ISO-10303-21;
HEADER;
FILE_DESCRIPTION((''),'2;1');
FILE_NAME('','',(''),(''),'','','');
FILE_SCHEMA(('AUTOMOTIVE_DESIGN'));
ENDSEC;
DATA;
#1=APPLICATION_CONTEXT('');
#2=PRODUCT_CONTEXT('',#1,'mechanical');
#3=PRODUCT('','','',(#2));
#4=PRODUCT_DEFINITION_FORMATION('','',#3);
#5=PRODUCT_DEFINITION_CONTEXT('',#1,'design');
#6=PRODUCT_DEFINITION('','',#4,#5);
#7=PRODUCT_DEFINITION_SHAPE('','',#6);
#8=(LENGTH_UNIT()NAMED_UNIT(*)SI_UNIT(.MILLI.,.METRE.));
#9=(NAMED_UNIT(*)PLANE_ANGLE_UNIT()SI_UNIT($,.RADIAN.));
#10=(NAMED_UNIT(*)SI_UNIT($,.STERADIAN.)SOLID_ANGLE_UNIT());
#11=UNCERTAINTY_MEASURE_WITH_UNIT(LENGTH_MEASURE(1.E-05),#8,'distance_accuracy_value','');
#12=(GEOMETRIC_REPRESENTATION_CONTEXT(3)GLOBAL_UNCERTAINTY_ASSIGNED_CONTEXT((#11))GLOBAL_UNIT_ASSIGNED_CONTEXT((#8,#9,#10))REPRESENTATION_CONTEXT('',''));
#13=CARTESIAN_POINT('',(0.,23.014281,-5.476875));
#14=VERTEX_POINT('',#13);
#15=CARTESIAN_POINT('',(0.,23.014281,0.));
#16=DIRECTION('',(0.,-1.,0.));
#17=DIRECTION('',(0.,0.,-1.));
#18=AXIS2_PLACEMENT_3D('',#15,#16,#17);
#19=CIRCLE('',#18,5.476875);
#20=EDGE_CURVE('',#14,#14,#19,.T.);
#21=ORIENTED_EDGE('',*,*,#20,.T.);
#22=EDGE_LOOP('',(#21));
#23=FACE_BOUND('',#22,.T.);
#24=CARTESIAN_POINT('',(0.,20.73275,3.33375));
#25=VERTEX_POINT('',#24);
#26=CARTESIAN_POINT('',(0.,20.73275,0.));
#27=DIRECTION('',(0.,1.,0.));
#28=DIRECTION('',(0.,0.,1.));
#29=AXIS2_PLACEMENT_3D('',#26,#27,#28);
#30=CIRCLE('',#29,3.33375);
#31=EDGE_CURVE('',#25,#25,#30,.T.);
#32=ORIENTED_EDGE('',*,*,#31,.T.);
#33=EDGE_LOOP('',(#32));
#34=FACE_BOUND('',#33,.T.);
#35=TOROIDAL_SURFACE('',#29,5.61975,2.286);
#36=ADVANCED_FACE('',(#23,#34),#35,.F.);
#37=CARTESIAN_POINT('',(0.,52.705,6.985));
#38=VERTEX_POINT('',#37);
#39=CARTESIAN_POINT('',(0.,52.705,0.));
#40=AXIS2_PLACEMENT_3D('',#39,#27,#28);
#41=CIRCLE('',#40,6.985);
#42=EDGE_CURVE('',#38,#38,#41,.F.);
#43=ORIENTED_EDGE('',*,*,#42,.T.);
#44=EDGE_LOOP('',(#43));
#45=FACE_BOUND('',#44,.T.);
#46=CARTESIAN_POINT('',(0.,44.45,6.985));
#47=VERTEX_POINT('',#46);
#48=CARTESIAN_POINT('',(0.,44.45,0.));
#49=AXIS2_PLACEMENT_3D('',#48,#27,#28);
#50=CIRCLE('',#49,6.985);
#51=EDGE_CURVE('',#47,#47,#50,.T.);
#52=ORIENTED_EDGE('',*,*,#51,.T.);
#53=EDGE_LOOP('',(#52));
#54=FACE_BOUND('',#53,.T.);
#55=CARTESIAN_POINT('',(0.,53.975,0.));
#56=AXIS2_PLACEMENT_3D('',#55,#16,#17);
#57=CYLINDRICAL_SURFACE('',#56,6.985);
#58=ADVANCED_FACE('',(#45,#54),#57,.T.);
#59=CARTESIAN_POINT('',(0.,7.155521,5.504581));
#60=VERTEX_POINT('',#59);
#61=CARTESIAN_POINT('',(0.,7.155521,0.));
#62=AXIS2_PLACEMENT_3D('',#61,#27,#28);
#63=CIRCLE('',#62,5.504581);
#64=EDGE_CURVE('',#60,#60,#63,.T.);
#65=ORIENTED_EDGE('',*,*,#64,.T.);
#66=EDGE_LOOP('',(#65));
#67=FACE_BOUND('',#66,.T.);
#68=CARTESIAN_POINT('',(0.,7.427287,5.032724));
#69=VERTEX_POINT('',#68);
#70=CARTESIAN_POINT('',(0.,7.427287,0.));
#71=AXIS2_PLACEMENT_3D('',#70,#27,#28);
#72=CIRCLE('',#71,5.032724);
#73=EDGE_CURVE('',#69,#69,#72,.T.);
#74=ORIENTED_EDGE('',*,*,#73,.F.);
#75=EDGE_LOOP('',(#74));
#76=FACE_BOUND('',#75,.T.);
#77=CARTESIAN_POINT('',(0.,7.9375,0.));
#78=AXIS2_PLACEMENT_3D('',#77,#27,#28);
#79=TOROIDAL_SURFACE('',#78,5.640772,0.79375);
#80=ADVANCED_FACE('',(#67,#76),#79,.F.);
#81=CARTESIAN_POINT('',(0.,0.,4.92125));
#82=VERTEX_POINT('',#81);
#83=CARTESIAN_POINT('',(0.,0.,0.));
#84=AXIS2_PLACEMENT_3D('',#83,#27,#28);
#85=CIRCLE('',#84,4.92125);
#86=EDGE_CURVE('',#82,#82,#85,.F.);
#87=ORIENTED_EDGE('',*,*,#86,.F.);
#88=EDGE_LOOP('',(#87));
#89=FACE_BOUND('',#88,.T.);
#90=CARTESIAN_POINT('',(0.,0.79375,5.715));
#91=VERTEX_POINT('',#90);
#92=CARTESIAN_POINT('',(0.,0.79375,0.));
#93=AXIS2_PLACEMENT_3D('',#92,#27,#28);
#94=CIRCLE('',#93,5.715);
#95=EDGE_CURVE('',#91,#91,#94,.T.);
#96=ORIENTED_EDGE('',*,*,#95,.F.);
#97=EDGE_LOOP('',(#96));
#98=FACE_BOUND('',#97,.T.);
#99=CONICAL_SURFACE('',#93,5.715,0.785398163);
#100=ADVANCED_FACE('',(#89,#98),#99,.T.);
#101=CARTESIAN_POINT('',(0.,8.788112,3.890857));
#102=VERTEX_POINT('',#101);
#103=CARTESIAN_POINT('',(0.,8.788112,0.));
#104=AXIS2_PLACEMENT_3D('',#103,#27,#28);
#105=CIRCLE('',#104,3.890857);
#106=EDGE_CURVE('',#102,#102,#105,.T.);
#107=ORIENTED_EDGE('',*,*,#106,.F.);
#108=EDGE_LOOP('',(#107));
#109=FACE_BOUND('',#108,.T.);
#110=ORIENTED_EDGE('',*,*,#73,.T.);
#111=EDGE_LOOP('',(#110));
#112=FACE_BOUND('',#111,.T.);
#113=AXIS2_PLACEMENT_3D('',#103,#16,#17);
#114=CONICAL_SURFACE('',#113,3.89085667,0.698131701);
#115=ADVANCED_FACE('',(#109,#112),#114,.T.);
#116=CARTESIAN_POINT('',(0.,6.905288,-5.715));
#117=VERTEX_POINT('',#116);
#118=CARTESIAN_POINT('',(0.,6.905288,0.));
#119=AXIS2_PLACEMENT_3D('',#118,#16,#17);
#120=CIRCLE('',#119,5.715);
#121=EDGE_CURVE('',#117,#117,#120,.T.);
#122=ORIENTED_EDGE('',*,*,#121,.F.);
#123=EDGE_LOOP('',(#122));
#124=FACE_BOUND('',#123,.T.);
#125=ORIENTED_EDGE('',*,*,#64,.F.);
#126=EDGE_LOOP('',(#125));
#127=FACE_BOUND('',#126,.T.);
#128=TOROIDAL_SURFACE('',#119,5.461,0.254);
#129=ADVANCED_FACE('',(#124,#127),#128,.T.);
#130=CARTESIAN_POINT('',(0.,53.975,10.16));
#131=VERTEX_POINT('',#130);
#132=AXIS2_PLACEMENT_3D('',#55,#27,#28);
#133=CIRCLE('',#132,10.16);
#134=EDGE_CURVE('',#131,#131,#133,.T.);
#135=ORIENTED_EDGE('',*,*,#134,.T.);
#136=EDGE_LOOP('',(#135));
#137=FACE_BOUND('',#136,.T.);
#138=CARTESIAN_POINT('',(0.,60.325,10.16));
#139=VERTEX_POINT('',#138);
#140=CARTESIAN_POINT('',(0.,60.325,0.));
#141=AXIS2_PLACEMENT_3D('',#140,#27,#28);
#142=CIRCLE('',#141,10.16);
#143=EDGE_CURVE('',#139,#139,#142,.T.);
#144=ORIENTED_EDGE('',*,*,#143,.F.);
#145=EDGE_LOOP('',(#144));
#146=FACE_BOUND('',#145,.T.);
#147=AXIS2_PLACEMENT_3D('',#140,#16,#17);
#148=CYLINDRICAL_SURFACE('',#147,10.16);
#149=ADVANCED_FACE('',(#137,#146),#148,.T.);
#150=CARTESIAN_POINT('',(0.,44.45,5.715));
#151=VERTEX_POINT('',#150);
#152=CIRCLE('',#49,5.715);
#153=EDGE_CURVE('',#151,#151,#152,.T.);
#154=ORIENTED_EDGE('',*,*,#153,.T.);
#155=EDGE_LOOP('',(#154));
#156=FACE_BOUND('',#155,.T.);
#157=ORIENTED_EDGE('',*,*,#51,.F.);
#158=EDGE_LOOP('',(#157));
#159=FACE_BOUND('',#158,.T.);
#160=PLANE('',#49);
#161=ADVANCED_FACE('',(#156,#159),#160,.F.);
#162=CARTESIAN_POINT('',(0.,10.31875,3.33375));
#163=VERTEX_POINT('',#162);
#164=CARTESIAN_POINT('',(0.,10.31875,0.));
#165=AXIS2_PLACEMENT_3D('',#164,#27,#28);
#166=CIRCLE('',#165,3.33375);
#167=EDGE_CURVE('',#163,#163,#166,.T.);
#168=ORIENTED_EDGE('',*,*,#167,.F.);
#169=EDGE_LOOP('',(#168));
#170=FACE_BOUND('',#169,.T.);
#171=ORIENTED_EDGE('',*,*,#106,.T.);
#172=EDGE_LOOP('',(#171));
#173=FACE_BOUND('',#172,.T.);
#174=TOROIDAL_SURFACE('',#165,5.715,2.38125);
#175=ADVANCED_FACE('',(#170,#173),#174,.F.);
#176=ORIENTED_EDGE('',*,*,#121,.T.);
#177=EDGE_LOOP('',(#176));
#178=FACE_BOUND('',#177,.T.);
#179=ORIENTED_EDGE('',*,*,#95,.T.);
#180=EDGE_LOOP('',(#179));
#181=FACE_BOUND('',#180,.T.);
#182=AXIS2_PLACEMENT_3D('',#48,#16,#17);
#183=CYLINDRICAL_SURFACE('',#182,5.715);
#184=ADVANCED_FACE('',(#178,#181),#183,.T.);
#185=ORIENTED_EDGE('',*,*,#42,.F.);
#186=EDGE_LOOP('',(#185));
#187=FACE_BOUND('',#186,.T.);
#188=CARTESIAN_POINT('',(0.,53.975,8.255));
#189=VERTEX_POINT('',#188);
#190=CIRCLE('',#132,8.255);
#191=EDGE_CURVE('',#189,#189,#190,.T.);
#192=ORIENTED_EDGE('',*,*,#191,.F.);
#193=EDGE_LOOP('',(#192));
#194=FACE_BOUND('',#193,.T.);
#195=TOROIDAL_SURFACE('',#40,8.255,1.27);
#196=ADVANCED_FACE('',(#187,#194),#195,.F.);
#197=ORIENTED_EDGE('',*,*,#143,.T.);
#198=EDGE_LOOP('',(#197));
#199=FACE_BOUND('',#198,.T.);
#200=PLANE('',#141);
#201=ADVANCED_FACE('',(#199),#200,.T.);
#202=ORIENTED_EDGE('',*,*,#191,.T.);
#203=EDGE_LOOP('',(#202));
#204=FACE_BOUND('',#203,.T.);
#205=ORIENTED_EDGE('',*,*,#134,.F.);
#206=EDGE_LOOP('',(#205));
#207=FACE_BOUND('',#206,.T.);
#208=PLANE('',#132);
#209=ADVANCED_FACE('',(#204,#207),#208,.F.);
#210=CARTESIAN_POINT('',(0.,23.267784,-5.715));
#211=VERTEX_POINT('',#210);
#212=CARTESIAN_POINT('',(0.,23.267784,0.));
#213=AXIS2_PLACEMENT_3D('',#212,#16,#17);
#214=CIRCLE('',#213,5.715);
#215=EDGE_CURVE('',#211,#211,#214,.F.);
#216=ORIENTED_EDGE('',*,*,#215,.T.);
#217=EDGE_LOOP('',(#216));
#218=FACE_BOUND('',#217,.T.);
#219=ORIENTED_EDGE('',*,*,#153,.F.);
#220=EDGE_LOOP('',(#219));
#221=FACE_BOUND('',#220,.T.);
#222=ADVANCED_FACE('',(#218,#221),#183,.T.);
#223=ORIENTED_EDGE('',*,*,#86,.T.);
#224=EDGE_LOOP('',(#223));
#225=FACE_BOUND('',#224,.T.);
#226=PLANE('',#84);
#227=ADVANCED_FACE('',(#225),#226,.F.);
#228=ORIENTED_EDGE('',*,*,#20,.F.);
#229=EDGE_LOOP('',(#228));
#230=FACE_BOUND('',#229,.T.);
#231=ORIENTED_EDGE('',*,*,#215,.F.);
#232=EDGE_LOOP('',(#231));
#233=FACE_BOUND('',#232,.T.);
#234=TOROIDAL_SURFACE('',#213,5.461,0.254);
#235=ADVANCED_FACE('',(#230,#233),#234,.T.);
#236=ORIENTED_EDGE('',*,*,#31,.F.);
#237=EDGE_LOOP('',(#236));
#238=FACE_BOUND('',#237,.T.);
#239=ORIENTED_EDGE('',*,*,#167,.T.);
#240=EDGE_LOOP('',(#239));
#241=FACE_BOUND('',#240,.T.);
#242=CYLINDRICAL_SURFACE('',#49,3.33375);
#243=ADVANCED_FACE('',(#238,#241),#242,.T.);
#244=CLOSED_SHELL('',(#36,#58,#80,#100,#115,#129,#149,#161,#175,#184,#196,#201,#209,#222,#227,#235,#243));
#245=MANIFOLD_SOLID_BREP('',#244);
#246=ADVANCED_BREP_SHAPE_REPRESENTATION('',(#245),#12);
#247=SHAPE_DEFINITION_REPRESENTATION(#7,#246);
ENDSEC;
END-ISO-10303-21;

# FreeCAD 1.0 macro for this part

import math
import FreeCAD as App
import Part
import Sketcher
from FreeCAD import Vector
Q = App.Units.Quantity


def edges_at(feature, points):
    """Names of the edges that pass closest to the given points."""
    edges = feature.Shape.Edges
    near = lambda p: min(range(len(edges)), key=lambda i: edges[i].distToShape(Part.Vertex(*p))[0])
    return sorted({f"Edge{near(p) + 1}" for p in points})

doc = App.newDocument("Part")
params = doc.addObject("Spreadsheet::Sheet", "Params")
for row, (alias, value) in enumerate([
    ("sketch1_diameter", "0.45 in"),
    ("pad1_length", "1.75 in"),
    ("chamfer_size", "0.03125 in"),
    ("sketch2_radius", "0.09 in"),
    ("sketch2_radius2", "0.09375 in"),
    ("sketch2_radius3", "0.03125 in"),
    ("sketch2_width", "0.41 in"),
    ("sketch2_width2", "0.625 in"),
    ("groove_angle", "360 deg"),
    ("fillet_radius", "0.01 in"),
    ("sketch3_diameter", "0.55 in"),
    ("pad2_length", "0.375 in"),
    ("sketch4_diameter", "0.8 in"),
    ("pad3_length", "0.25 in"),
    ("fillet2_radius", "0.05 in"),
], start=1):
    params.set(f"A{row}", alias)
    params.set(f"B{row}", "=" + value)
    params.setAlias(f"B{row}", alias)

body = doc.addObject("PartDesign::Body", "Body")

# Sketch on XZ plane
sketch1 = body.newObject("Sketcher::SketchObject", "Sketch")
sketch1.AttachmentSupport = (doc.getObject("XZ_Plane"), [""])
sketch1.MapMode = "FlatFace"
sketch1.addGeometry(Part.Circle(Vector(0, 0, 0), Vector(0, 0, 1), 6), False)
sketch1.addConstraint([
    Sketcher.Constraint("Coincident", 0, 3, -1, 1),
    Sketcher.Constraint("Diameter", 0, Q("0.45 in")),
])
sketch1.setExpression("Constraints[1]", "Params.sketch1_diameter")
pad1 = body.newObject("PartDesign::Pad", "Pad")
pad1.Profile = sketch1
pad1.setExpression("Length", "Params.pad1_length")
pad1.Reversed = True
doc.recompute()

chamfer = body.newObject("PartDesign::Chamfer", "Chamfer")
chamfer.Base = (pad1, edges_at(pad1, [(-5.715, 0, 0)]))
chamfer.setExpression("Size", "Params.chamfer_size")

# Sketch on YZ plane
sketch2 = body.newObject("Sketcher::SketchObject", "Sketch001")
sketch2.AttachmentSupport = (doc.getObject("YZ_Plane"), [""])
sketch2.MapMode = "FlatFace"
sketch2.addGeometry([
    Part.LineSegment(Vector(7.43, 5.03, 0), Vector(8.79, 3.89, 0)),  # 0
    Part.ArcOfCircle(Part.Circle(Vector(10.32, 5.72, 0), Vector(0, 0, 1), 2.38), math.radians(-130), math.radians(-90)),  # 1
    Part.LineSegment(Vector(10.32, 3.33, 0), Vector(20.73, 3.33, 0)),  # 2
    Part.ArcOfCircle(Part.Circle(Vector(20.73, 5.62, 0), Vector(0, 0, 1), 2.29), math.radians(-90), math.radians(0)),  # 3
    Part.LineSegment(Vector(23.02, 5.62, 0), Vector(23.02, 5.71, 0)),  # 4
    Part.LineSegment(Vector(23.02, 5.71, 0), Vector(7.14, 5.71, 0)),  # 5
    Part.LineSegment(Vector(7.14, 5.71, 0), Vector(7.14, 5.64, 0)),  # 6
    Part.ArcOfCircle(Part.Circle(Vector(7.94, 5.64, 0), Vector(0, 0, 1), 0.79), math.radians(180), math.radians(230)),  # 7
], False)
sketch2.addConstraint([
    Sketcher.Constraint("Tangent", 0, 2, 1, 1),
    Sketcher.Constraint("Tangent", 1, 2, 2, 1),
    Sketcher.Constraint("Tangent", 2, 2, 3, 1),
    Sketcher.Constraint("Tangent", 3, 2, 4, 1),
    Sketcher.Constraint("Coincident", 4, 2, 5, 1),
    Sketcher.Constraint("Coincident", 5, 2, 6, 1),
    Sketcher.Constraint("Tangent", 6, 2, 7, 1),
    Sketcher.Constraint("Tangent", 7, 2, 0, 1),
    Sketcher.Constraint("Horizontal", 2),
    Sketcher.Constraint("Vertical", 4),
    Sketcher.Constraint("Horizontal", 5),
    Sketcher.Constraint("Vertical", 6),
    Sketcher.Constraint("Horizontal", 1, 3, 4, 2),
    Sketcher.Constraint("Radius", 3, Q("0.09 in")),
    Sketcher.Constraint("Angle", 0, Q("-40 deg")),
    Sketcher.Constraint("Radius", 1, Q("0.09375 in")),
    Sketcher.Constraint("Radius", 7, Q("0.03125 in")),
    Sketcher.Constraint("DistanceX", 2, 1, 2, 2, Q("0.41 in")),
    Sketcher.Constraint("DistanceX", 5, 2, 5, 1, Q("0.625 in")),
    Sketcher.Constraint("DistanceX", -1, 1, 1, 3, Q("0.40625 in")),
    Sketcher.Constraint("DistanceY", -1, 1, 1, 3, Q("0.225 in")),
])
sketch2.setExpression("Constraints[13]", "Params.sketch2_radius")
sketch2.setExpression("Constraints[15]", "Params.sketch2_radius2")
sketch2.setExpression("Constraints[16]", "Params.sketch2_radius3")
sketch2.setExpression("Constraints[17]", "Params.sketch2_width")
sketch2.setExpression("Constraints[18]", "Params.sketch2_width2")
groove = body.newObject("PartDesign::Groove", "Groove")
groove.Profile = sketch2
groove.ReferenceAxis = (sketch2, ["H_Axis"])
groove.setExpression("Angle", "Params.groove_angle")
doc.recompute()

fillet = body.newObject("PartDesign::Fillet", "Fillet")
fillet.Base = (groove, edges_at(groove, [(-5.715, 7.144, 0), (-5.715, 23.019, 0)]))
fillet.setExpression("Radius", "Params.fillet_radius")

# Sketch on XZ plane
sketch3 = body.newObject("Sketcher::SketchObject", "Sketch002")
sketch3.AttachmentSupport = (doc.getObject("XZ_Plane"), [""])
sketch3.MapMode = "FlatFace"
sketch3.AttachmentOffset = App.Placement(Vector(0, 0, -1.75 * 25.4), App.Rotation())
sketch3.addGeometry(Part.Circle(Vector(0, 0, 0), Vector(0, 0, 1), 7), False)
sketch3.addConstraint([
    Sketcher.Constraint("Coincident", 0, 3, -1, 1),
    Sketcher.Constraint("Diameter", 0, Q("0.55 in")),
])
sketch3.setExpression("Constraints[1]", "Params.sketch3_diameter")
pad2 = body.newObject("PartDesign::Pad", "Pad001")
pad2.Profile = sketch3
pad2.setExpression("Length", "Params.pad2_length")
pad2.Reversed = True

# Sketch on XZ plane
sketch4 = body.newObject("Sketcher::SketchObject", "Sketch003")
sketch4.AttachmentSupport = (doc.getObject("XZ_Plane"), [""])
sketch4.MapMode = "FlatFace"
sketch4.AttachmentOffset = App.Placement(Vector(0, 0, -2.125 * 25.4), App.Rotation())
sketch4.addGeometry(Part.Circle(Vector(0, 0, 0), Vector(0, 0, 1), 10), False)
sketch4.addConstraint([
    Sketcher.Constraint("Coincident", 0, 3, -1, 1),
    Sketcher.Constraint("Diameter", 0, Q("0.8 in")),
])
sketch4.setExpression("Constraints[1]", "Params.sketch4_diameter")
pad3 = body.newObject("PartDesign::Pad", "Pad002")
pad3.Profile = sketch4
pad3.setExpression("Length", "Params.pad3_length")
pad3.Reversed = True
doc.recompute()

fillet2 = body.newObject("PartDesign::Fillet", "Fillet001")
fillet2.Base = (pad3, edges_at(pad3, [(-6.985, 53.975, 0)]))
fillet2.setExpression("Radius", "Params.fillet2_radius")

doc.recompute()
